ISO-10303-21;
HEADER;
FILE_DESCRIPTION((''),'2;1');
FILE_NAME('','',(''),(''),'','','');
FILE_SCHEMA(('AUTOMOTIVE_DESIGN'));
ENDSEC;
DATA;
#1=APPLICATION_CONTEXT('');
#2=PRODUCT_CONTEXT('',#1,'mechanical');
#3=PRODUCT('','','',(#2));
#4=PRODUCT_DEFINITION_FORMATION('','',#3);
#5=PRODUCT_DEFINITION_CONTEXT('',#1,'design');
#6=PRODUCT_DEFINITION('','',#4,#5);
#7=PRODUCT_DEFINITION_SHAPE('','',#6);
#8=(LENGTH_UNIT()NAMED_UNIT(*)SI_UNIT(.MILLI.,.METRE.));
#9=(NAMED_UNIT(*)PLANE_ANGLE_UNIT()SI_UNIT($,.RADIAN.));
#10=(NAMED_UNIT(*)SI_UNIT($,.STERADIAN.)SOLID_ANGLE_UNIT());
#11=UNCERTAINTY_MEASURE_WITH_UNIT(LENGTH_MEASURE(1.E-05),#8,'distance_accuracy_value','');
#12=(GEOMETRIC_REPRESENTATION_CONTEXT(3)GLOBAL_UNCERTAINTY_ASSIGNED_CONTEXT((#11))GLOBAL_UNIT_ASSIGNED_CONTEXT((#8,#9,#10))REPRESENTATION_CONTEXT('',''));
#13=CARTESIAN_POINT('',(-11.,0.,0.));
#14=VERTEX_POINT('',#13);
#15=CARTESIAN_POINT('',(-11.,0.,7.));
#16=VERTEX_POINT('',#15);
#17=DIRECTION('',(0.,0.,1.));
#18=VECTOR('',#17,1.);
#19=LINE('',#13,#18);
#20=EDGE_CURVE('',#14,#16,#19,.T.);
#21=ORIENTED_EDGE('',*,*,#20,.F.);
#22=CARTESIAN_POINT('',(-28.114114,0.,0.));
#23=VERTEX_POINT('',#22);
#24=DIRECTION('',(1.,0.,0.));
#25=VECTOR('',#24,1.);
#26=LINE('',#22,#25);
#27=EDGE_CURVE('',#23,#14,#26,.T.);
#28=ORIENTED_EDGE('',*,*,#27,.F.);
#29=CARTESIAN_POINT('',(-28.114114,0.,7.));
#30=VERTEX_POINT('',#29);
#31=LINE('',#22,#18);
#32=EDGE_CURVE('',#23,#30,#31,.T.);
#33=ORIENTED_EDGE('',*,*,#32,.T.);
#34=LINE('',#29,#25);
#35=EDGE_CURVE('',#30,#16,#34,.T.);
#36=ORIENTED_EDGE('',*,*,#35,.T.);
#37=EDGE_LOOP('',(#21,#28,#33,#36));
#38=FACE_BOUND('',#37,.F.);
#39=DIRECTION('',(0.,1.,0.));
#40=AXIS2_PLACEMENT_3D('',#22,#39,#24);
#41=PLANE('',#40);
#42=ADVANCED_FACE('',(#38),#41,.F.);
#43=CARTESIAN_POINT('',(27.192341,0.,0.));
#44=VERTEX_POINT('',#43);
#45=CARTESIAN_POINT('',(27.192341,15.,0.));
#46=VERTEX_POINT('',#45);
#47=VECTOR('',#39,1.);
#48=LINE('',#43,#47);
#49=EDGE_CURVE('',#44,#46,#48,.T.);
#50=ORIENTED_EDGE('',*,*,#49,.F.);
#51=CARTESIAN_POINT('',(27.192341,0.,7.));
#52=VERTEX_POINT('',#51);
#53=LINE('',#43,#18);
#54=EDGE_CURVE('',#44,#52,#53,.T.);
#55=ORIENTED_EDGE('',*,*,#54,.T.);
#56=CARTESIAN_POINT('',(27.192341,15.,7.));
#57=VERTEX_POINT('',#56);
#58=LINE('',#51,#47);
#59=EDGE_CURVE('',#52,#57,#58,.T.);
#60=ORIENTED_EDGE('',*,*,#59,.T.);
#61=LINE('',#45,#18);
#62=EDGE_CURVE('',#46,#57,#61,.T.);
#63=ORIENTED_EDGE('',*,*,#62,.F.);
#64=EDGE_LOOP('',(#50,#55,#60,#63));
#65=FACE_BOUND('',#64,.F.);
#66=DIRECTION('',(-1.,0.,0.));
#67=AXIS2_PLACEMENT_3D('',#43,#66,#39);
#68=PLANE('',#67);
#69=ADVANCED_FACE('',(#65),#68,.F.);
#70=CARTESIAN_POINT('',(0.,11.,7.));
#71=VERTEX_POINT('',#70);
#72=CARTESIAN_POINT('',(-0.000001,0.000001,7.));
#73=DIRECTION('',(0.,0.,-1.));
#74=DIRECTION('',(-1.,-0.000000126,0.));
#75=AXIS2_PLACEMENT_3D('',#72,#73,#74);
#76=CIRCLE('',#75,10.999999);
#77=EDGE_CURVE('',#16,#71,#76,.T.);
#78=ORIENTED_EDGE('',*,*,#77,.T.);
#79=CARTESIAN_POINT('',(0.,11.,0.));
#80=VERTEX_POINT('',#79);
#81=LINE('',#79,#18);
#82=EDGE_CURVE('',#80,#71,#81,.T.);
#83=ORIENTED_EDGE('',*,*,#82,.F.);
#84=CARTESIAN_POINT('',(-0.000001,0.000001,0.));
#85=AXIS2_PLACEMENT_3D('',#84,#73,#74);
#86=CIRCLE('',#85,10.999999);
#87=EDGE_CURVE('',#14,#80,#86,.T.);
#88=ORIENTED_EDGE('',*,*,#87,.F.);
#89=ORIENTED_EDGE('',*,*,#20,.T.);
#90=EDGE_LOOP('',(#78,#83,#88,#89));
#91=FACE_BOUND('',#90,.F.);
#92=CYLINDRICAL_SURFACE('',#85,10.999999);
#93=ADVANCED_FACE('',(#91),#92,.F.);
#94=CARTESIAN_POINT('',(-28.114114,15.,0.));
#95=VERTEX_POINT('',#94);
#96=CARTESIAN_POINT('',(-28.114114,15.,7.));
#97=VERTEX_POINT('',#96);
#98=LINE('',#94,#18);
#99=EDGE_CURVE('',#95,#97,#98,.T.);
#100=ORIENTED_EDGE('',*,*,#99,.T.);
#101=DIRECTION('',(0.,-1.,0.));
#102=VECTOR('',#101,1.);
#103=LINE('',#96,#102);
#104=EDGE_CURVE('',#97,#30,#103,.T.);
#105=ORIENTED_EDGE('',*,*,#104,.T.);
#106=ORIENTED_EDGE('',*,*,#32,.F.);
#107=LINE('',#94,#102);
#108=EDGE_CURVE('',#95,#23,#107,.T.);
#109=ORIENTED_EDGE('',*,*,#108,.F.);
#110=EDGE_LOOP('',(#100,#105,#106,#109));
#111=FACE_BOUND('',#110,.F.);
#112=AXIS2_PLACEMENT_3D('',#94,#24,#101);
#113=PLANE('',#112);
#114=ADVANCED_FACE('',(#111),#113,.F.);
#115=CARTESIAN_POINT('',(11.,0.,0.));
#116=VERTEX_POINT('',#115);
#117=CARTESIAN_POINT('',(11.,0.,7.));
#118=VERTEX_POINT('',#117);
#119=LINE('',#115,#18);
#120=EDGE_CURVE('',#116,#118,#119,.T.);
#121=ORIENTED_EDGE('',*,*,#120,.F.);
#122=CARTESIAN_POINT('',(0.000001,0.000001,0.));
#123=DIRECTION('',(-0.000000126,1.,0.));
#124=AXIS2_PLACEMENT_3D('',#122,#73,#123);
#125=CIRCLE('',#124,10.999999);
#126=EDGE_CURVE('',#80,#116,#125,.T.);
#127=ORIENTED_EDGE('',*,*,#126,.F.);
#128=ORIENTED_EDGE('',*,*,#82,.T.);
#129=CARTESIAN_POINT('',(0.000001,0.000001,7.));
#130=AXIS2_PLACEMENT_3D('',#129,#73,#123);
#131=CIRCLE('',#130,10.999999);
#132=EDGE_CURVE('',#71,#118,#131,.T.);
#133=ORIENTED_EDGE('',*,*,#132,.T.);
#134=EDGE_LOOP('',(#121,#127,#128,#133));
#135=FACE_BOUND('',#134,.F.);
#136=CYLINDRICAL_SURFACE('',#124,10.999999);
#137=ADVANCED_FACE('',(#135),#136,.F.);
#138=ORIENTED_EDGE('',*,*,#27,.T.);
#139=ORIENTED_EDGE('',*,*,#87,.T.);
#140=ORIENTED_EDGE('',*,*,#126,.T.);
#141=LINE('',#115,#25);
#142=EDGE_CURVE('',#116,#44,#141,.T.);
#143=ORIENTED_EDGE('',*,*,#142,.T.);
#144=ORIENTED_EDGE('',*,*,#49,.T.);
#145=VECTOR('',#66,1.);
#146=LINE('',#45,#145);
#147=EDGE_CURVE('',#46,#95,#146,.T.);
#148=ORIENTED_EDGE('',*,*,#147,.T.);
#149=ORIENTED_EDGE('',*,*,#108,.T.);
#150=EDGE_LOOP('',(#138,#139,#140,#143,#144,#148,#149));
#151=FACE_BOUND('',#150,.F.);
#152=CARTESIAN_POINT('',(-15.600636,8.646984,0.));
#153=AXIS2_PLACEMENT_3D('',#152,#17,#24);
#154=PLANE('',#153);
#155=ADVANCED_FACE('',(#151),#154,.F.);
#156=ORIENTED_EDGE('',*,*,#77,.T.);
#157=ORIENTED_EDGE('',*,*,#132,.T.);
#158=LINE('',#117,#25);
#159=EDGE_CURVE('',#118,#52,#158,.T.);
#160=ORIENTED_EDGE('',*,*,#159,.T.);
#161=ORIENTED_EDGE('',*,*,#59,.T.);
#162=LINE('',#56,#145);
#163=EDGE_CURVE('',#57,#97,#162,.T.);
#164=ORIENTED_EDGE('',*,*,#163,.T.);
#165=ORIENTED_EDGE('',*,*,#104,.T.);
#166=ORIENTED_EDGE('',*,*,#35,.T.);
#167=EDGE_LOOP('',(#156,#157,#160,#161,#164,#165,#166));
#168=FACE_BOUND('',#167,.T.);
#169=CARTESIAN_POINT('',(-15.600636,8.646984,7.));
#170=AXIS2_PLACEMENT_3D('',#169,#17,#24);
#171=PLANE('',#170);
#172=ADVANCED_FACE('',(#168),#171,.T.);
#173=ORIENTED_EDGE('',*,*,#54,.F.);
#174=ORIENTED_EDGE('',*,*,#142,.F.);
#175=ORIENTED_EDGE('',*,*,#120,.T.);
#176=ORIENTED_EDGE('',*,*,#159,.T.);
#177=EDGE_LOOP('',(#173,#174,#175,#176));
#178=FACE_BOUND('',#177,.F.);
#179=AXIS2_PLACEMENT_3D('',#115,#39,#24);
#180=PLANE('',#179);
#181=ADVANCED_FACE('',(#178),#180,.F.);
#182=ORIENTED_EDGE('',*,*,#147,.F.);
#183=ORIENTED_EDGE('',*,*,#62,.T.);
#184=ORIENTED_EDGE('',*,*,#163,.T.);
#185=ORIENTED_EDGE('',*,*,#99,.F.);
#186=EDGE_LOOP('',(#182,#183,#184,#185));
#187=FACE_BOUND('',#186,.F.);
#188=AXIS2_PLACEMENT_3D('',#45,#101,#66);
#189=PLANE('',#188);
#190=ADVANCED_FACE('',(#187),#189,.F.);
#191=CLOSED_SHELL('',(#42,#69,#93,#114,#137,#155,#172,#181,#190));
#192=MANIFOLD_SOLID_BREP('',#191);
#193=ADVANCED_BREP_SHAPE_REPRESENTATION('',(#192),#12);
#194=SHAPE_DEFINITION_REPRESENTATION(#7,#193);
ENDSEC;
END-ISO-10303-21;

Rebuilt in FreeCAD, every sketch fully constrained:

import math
import FreeCAD as App
import Part
import Sketcher
Q = App.Units.Quantity

doc = App.newDocument("Part")
body = doc.addObject("PartDesign::Body", "Body")

sketch1 = body.newObject("Sketcher::SketchObject", "Sketch")
sketch1.AttachmentSupport = (doc.getObject("XY_Plane"), [""])
sketch1.MapMode = "FlatFace"
sketch1.addGeometry([
    Part.ArcOfCircle(Part.Circle(App.Vector(0, 0, 0), App.Vector(0, 0, 1), 11), math.radians(90), math.radians(180)),
    Part.ArcOfCircle(Part.Circle(App.Vector(0, 0, 0), App.Vector(0, 0, 1), 11), math.radians(0), math.radians(90)),
    Part.LineSegment(App.Vector(11, 0, 0), App.Vector(27, 0, 0)),
    Part.LineSegment(App.Vector(27, 0, 0), App.Vector(27, 15, 0)),
    Part.LineSegment(App.Vector(27, 15, 0), App.Vector(-28, 15, 0)),
    Part.LineSegment(App.Vector(-28, 15, 0), App.Vector(-28, 0, 0)),
    Part.LineSegment(App.Vector(-28, 0, 0), App.Vector(-11, 0, 0)),
], False)
sketch1.addConstraint([
    Sketcher.Constraint("Tangent", 0, 1, 1, 2),
    Sketcher.Constraint("Coincident", 1, 1, 2, 1),
    Sketcher.Constraint("Coincident", 2, 2, 3, 1),
    Sketcher.Constraint("Coincident", 3, 2, 4, 1),
    Sketcher.Constraint("Coincident", 4, 2, 5, 1),
    Sketcher.Constraint("Coincident", 5, 2, 6, 1),
    Sketcher.Constraint("Coincident", 6, 2, 0, 2),
    Sketcher.Constraint("Horizontal", 2),
    Sketcher.Constraint("Vertical", 3),
    Sketcher.Constraint("Horizontal", 4),
    Sketcher.Constraint("Vertical", 5),
    Sketcher.Constraint("Horizontal", 6),
    Sketcher.Constraint("Coincident", 0, 3, -1, 1),
    Sketcher.Constraint("Equal", 0, 1),
    Sketcher.Constraint("PointOnObject", 0, 1, -2),
    Sketcher.Constraint("PointOnObject", 1, 1, -1),
    Sketcher.Constraint("PointOnObject", 5, 2, -1),
    Sketcher.Constraint("Radius", 0, Q("10.999999 mm")),
    Sketcher.Constraint("DistanceY", 3, 1, 3, 2, Q("15 mm")),
    Sketcher.Constraint("DistanceX", 2, 1, 2, 2, Q("16.192341 mm")),
    Sketcher.Constraint("DistanceX", 4, 2, 4, 1, Q("55.306455 mm")),
])
pad1 = body.newObject("PartDesign::Pad", "Pad")
pad1.Profile = sketch1
pad1.Length = 7

doc.recompute()
